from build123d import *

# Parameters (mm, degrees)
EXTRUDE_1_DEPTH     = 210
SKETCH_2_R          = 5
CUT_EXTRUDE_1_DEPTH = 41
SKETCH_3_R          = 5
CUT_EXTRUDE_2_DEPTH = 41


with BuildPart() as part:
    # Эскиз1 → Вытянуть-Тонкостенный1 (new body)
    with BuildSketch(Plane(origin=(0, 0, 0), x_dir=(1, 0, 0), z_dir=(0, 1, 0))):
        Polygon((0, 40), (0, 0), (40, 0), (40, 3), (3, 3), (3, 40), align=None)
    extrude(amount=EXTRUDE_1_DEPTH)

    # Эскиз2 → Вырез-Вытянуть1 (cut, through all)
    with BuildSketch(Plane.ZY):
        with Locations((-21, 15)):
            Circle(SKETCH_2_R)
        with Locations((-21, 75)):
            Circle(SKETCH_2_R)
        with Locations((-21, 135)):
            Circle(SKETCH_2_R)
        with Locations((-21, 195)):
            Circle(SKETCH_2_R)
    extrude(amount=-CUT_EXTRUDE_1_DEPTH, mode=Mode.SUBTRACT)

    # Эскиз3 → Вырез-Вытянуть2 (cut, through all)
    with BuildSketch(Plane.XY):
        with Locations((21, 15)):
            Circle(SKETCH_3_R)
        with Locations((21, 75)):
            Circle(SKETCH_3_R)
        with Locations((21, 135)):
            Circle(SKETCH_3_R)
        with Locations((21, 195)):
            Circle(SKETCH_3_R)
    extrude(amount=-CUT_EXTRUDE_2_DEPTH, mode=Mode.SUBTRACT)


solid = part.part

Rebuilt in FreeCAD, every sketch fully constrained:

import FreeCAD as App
import Part
import Sketcher

V = App.Vector

doc = App.newDocument("Part")
params = doc.addObject("Spreadsheet::Sheet", "Params")
for row, (alias, value) in enumerate([
    ("sketch1_width", "40 mm"),
    ("sketch1_width2", "37 mm"),
    ("pad1_length", "210 mm"),
    ("sketch2_diameter", "10 mm"),
    ("sketch3_diameter", "10 mm"),
], start=1):
    params.set(f"A{row}", alias)
    params.set(f"B{row}", "=" + value)
    params.setAlias(f"B{row}", alias)

body = doc.addObject("PartDesign::Body", "Body")

sketch1 = body.newObject("Sketcher::SketchObject", "Sketch")
sketch1.AttachmentSupport = (doc.getObject("XZ_Plane"), [""])
sketch1.MapMode = "FlatFace"
sketch1.addGeometry([
    Part.LineSegment(V(0, -40, 0), V(0, 0, 0)),
    Part.LineSegment(V(0, 0, 0), V(40, 0, 0)),
    Part.LineSegment(V(40, 0, 0), V(40, -3, 0)),
    Part.LineSegment(V(40, -3, 0), V(3, -3, 0)),
    Part.LineSegment(V(3, -3, 0), V(3, -40, 0)),
    Part.LineSegment(V(3, -40, 0), V(0, -40, 0)),
], False)
sketch1.addConstraint([
    Sketcher.Constraint("Coincident", 0, 2, 1, 1),
    Sketcher.Constraint("Coincident", 1, 2, 2, 1),
    Sketcher.Constraint("Coincident", 2, 2, 3, 1),
    Sketcher.Constraint("Coincident", 3, 2, 4, 1),
    Sketcher.Constraint("Coincident", 4, 2, 5, 1),
    Sketcher.Constraint("Coincident", 5, 2, 0, 1),
    Sketcher.Constraint("Vertical", 0),
    Sketcher.Constraint("Horizontal", 1),
    Sketcher.Constraint("Vertical", 2),
    Sketcher.Constraint("Horizontal", 3),
    Sketcher.Constraint("Vertical", 4),
    Sketcher.Constraint("Horizontal", 5),
    Sketcher.Constraint("Coincident", 0, 2, -1, 1),
    Sketcher.Constraint("Equal", 1, 0),
    Sketcher.Constraint("Equal", 5, 2),
    Sketcher.Constraint("DistanceX", 1, 1, 1, 2, 40.0),
    Sketcher.Constraint("DistanceX", 3, 2, 3, 1, 37.0),
])
sketch1.setExpression("Constraints[15]", "Params.sketch1_width")
sketch1.setExpression("Constraints[16]", "Params.sketch1_width2")
pad1 = body.newObject("PartDesign::Pad", "Pad")
pad1.Profile = sketch1
pad1.setExpression("Length", "Params.pad1_length")
pad1.Reversed = True

sketch2 = body.newObject("Sketcher::SketchObject", "Sketch001")
sketch2.AttachmentSupport = (doc.getObject("YZ_Plane"), [""])
sketch2.MapMode = "FlatFace"
sketch2.addGeometry([
    Part.Circle(V(15, -21, 0), V(0, 0, 1), 5),
    Part.Circle(V(75, -21, 0), V(0, 0, 1), 5),
    Part.Circle(V(135, -21, 0), V(0, 0, 1), 5),
    Part.Circle(V(195, -21, 0), V(0, 0, 1), 5),
], False)
sketch2.addConstraint([
    Sketcher.Constraint("Equal", 0, 1),
    Sketcher.Constraint("Equal", 1, 2),
    Sketcher.Constraint("Equal", 2, 3),
    Sketcher.Constraint("Horizontal", 0, 3, 1, 3),
    Sketcher.Constraint("Horizontal", 1, 3, 2, 3),
    Sketcher.Constraint("Horizontal", 2, 3, 3, 3),
    Sketcher.Constraint("Diameter", 0, 10.0),
    Sketcher.Constraint("DistanceX", -1, 1, 0, 3, 15.0),
    Sketcher.Constraint("DistanceY", 0, 3, -1, 1, 21.0),
    Sketcher.Constraint("DistanceX", -1, 1, 1, 3, 75.0),
    Sketcher.Constraint("DistanceX", -1, 1, 2, 3, 135.0),
    Sketcher.Constraint("DistanceX", -1, 1, 3, 3, 195.0),
])
sketch2.setExpression("Constraints[6]", "Params.sketch2_diameter")
pocket1 = body.newObject("PartDesign::Pocket", "Pocket")
pocket1.Profile = sketch2
pocket1.Type = "ThroughAll"
pocket1.Reversed = True

sketch3 = body.newObject("Sketcher::SketchObject", "Sketch002")
sketch3.AttachmentSupport = (doc.getObject("XY_Plane"), [""])
sketch3.MapMode = "FlatFace"
sketch3.addGeometry([
    Part.Circle(V(21, 15, 0), V(0, 0, 1), 5),
    Part.Circle(V(21, 75, 0), V(0, 0, 1), 5),
    Part.Circle(V(21, 135, 0), V(0, 0, 1), 5),
    Part.Circle(V(21, 195, 0), V(0, 0, 1), 5),
], False)
sketch3.addConstraint([
    Sketcher.Constraint("Equal", 0, 1),
    Sketcher.Constraint("Equal", 1, 2),
    Sketcher.Constraint("Equal", 2, 3),
    Sketcher.Constraint("Vertical", 0, 3, 1, 3),
    Sketcher.Constraint("Vertical", 1, 3, 2, 3),
    Sketcher.Constraint("Vertical", 2, 3, 3, 3),
    Sketcher.Constraint("Diameter", 0, 10.0),
    Sketcher.Constraint("DistanceX", -1, 1, 0, 3, 21.0),
    Sketcher.Constraint("DistanceY", -1, 1, 0, 3, 15.0),
    Sketcher.Constraint("DistanceY", -1, 1, 1, 3, 75.0),
    Sketcher.Constraint("DistanceY", -1, 1, 2, 3, 135.0),
    Sketcher.Constraint("DistanceY", -1, 1, 3, 3, 195.0),
])
sketch3.setExpression("Constraints[6]", "Params.sketch3_diameter")
pocket2 = body.newObject("PartDesign::Pocket", "Pocket001")
pocket2.Profile = sketch3
pocket2.Type = "ThroughAll"

doc.recompute()
